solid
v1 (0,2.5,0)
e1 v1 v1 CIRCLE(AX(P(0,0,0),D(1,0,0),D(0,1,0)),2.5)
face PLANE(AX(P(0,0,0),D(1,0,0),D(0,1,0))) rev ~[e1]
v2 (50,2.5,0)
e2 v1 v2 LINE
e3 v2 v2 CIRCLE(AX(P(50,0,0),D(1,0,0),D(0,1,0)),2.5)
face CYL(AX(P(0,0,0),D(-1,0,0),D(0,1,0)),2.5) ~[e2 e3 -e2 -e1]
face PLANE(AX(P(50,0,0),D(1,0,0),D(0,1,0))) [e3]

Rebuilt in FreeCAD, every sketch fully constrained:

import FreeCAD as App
import Part
import Sketcher
from FreeCAD import Vector

doc = App.newDocument("Part")
params = doc.addObject("Spreadsheet::Sheet", "Params")
for row, (alias, value) in enumerate([
    ("sketch1_diameter", "5 mm"),
    ("pad1_length", "50 mm"),
], start=1):
    params.set(f"A{row}", alias)
    params.set(f"B{row}", "=" + value)
    params.setAlias(f"B{row}", alias)

body = doc.addObject("PartDesign::Body", "Body")

sketch1 = body.newObject("Sketcher::SketchObject", "Sketch")
sketch1.AttachmentSupport = (doc.getObject("YZ_Plane"), [""])
sketch1.MapMode = "FlatFace"
sketch1.addGeometry(Part.Circle(Vector(0, 0, 0), Vector(0, 0, 1), 2.5), False)
sketch1.addConstraint(Sketcher.Constraint("Coincident", 0, 3, -1, 1))
sketch1.addConstraint(Sketcher.Constraint("Diameter", 0, 5.0))
sketch1.setExpression("Constraints[1]", "Params.sketch1_diameter")
pad1 = body.newObject("PartDesign::Pad", "Pad")
pad1.Profile = sketch1
pad1.setExpression("Length", "Params.pad1_length")

doc.recompute()
